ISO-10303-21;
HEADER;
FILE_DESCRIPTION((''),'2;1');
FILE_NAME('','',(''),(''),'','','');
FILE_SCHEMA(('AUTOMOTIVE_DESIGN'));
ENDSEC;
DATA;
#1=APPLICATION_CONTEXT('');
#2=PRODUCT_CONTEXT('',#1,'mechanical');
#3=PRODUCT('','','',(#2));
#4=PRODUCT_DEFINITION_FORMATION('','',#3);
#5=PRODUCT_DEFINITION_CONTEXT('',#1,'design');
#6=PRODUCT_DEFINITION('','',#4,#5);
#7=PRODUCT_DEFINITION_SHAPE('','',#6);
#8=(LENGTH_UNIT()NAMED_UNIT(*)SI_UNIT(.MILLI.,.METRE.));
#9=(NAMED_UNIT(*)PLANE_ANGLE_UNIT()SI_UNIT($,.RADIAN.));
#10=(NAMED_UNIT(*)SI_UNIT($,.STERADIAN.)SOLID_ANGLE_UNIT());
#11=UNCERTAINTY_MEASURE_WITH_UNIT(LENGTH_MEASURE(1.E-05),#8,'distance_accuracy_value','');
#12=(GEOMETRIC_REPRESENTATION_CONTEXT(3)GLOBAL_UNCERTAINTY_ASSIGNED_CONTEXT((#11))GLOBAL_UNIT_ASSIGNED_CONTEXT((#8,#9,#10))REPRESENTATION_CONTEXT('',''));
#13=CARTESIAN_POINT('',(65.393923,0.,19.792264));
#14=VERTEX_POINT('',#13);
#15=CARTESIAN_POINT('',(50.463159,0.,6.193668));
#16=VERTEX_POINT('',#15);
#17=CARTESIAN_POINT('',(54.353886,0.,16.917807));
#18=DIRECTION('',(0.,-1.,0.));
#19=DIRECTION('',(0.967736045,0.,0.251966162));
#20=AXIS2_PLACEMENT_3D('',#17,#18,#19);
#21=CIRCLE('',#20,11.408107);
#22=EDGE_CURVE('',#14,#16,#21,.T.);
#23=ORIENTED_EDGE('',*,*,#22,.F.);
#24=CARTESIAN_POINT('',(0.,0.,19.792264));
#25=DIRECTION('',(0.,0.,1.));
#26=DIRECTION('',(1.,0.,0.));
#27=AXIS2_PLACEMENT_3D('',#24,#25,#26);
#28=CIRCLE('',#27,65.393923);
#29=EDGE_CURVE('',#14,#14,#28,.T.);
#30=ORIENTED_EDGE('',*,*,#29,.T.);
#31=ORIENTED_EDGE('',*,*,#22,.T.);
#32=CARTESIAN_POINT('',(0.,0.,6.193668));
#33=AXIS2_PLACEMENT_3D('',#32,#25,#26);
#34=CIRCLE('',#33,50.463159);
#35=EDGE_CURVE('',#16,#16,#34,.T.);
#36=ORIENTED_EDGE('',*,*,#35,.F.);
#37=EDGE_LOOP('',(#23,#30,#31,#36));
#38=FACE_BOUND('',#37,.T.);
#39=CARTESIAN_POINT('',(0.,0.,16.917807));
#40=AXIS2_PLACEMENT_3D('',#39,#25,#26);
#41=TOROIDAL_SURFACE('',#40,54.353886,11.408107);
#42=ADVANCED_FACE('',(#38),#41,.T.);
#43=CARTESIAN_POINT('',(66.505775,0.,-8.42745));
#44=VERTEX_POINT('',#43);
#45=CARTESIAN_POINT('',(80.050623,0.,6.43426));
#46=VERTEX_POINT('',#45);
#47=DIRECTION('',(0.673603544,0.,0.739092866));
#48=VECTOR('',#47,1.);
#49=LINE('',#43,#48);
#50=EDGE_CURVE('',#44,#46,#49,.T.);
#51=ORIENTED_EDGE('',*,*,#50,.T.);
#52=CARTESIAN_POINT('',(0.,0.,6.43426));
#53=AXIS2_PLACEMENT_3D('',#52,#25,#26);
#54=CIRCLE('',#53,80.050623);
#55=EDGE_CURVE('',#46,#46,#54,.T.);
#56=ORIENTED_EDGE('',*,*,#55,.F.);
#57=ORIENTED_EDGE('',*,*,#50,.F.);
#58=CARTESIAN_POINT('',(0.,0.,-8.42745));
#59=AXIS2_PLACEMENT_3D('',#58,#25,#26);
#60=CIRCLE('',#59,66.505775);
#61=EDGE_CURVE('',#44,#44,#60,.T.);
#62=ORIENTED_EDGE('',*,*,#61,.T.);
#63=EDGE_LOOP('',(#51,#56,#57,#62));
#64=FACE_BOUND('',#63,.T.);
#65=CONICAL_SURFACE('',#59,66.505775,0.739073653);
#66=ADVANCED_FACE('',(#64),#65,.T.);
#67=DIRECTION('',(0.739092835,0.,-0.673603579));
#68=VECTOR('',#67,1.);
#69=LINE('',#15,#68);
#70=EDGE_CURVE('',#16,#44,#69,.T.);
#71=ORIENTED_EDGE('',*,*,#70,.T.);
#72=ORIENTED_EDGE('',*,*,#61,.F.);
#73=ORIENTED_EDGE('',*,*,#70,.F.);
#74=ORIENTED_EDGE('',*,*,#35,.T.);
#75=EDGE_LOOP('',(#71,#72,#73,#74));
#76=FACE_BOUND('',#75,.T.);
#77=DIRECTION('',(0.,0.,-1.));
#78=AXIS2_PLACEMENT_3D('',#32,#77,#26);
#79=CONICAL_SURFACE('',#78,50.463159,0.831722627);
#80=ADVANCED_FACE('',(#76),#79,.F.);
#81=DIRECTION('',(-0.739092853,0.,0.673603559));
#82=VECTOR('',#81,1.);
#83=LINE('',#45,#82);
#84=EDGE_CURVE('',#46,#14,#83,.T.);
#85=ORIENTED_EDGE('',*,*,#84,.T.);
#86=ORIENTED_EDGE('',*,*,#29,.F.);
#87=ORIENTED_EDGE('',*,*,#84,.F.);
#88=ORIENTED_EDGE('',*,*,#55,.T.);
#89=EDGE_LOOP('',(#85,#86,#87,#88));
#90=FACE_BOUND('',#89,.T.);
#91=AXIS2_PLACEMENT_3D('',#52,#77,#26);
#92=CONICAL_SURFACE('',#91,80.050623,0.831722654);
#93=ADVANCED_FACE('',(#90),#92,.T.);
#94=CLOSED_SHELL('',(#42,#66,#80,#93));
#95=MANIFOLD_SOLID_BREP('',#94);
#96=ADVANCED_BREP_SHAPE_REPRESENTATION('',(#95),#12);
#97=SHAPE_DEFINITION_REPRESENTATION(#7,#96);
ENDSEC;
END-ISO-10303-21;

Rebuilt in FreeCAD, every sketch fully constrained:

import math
import FreeCAD as App
import Part
import Sketcher

V = App.Vector
Q = App.Units.Quantity

doc = App.newDocument("Part")
params = doc.addObject("Spreadsheet::Sheet", "Params")
for row, (alias, value) in enumerate([
    ("revolution_angle", "360 deg"),
], start=1):
    params.set(f"A{row}", alias)
    params.set(f"B{row}", "=" + value)
    params.setAlias(f"B{row}", alias)

body = doc.addObject("PartDesign::Body", "Body")

# Sketch on XZ plane
sketch1 = doc.addObject("Sketcher::SketchObject", "Sketch")
body.addObject(sketch1)
sketch1.AttachmentSupport = (doc.XZ_Plane, [""])
sketch1.MapMode = "FlatFace"
sketch1.addGeometry([
    Part.ArcOfCircle(Part.Circle(V(54.353886, 16.917807, 0), V(0, 0, 1), 11.408107), math.radians(14.59389), math.radians(250.059183)),
    Part.LineSegment(V(50.463159, 6.193668, 0), V(66.505775, -8.42745, 0)),
    Part.LineSegment(V(66.505775, -8.42745, 0), V(80.050623, 6.43426, 0)),
    Part.LineSegment(V(80.050623, 6.43426, 0), V(65.393923, 19.792264, 0)),
], False)
sketch1.addConstraint([
    Sketcher.Constraint("Coincident", 0, 2, 1, 1),
    Sketcher.Constraint("Coincident", 1, 2, 2, 1),
    Sketcher.Constraint("Coincident", 2, 2, 3, 1),
    Sketcher.Constraint("Coincident", 3, 2, 0, 1),
    Sketcher.Constraint("Perpendicular", 1, 2),
    Sketcher.Constraint("Perpendicular", 2, 3),
    Sketcher.Constraint("Radius", 0, Q("11.408107 mm")),
    Sketcher.Constraint("DistanceX", 3, 2, 2, 2, Q("14.6567 mm")),
    Sketcher.Constraint("Distance", 1, Q("21.70582 mm")),
    Sketcher.Constraint("Distance", 2, Q("20.108041 mm")),
    Sketcher.Constraint("Distance", 3, Q("19.830661 mm")),
    Sketcher.Constraint("DistanceX", -1, 1, 0, 2, Q("50.463159 mm")),
    Sketcher.Constraint("DistanceY", -1, 1, 0, 2, Q("6.193668 mm")),
])
revolution = doc.addObject("PartDesign::Revolution", "Revolution")
body.addObject(revolution)
revolution.Profile = sketch1
revolution.ReferenceAxis = (sketch1, ["V_Axis"])
revolution.setExpression("Angle", "Params.revolution_angle")

doc.recompute()
